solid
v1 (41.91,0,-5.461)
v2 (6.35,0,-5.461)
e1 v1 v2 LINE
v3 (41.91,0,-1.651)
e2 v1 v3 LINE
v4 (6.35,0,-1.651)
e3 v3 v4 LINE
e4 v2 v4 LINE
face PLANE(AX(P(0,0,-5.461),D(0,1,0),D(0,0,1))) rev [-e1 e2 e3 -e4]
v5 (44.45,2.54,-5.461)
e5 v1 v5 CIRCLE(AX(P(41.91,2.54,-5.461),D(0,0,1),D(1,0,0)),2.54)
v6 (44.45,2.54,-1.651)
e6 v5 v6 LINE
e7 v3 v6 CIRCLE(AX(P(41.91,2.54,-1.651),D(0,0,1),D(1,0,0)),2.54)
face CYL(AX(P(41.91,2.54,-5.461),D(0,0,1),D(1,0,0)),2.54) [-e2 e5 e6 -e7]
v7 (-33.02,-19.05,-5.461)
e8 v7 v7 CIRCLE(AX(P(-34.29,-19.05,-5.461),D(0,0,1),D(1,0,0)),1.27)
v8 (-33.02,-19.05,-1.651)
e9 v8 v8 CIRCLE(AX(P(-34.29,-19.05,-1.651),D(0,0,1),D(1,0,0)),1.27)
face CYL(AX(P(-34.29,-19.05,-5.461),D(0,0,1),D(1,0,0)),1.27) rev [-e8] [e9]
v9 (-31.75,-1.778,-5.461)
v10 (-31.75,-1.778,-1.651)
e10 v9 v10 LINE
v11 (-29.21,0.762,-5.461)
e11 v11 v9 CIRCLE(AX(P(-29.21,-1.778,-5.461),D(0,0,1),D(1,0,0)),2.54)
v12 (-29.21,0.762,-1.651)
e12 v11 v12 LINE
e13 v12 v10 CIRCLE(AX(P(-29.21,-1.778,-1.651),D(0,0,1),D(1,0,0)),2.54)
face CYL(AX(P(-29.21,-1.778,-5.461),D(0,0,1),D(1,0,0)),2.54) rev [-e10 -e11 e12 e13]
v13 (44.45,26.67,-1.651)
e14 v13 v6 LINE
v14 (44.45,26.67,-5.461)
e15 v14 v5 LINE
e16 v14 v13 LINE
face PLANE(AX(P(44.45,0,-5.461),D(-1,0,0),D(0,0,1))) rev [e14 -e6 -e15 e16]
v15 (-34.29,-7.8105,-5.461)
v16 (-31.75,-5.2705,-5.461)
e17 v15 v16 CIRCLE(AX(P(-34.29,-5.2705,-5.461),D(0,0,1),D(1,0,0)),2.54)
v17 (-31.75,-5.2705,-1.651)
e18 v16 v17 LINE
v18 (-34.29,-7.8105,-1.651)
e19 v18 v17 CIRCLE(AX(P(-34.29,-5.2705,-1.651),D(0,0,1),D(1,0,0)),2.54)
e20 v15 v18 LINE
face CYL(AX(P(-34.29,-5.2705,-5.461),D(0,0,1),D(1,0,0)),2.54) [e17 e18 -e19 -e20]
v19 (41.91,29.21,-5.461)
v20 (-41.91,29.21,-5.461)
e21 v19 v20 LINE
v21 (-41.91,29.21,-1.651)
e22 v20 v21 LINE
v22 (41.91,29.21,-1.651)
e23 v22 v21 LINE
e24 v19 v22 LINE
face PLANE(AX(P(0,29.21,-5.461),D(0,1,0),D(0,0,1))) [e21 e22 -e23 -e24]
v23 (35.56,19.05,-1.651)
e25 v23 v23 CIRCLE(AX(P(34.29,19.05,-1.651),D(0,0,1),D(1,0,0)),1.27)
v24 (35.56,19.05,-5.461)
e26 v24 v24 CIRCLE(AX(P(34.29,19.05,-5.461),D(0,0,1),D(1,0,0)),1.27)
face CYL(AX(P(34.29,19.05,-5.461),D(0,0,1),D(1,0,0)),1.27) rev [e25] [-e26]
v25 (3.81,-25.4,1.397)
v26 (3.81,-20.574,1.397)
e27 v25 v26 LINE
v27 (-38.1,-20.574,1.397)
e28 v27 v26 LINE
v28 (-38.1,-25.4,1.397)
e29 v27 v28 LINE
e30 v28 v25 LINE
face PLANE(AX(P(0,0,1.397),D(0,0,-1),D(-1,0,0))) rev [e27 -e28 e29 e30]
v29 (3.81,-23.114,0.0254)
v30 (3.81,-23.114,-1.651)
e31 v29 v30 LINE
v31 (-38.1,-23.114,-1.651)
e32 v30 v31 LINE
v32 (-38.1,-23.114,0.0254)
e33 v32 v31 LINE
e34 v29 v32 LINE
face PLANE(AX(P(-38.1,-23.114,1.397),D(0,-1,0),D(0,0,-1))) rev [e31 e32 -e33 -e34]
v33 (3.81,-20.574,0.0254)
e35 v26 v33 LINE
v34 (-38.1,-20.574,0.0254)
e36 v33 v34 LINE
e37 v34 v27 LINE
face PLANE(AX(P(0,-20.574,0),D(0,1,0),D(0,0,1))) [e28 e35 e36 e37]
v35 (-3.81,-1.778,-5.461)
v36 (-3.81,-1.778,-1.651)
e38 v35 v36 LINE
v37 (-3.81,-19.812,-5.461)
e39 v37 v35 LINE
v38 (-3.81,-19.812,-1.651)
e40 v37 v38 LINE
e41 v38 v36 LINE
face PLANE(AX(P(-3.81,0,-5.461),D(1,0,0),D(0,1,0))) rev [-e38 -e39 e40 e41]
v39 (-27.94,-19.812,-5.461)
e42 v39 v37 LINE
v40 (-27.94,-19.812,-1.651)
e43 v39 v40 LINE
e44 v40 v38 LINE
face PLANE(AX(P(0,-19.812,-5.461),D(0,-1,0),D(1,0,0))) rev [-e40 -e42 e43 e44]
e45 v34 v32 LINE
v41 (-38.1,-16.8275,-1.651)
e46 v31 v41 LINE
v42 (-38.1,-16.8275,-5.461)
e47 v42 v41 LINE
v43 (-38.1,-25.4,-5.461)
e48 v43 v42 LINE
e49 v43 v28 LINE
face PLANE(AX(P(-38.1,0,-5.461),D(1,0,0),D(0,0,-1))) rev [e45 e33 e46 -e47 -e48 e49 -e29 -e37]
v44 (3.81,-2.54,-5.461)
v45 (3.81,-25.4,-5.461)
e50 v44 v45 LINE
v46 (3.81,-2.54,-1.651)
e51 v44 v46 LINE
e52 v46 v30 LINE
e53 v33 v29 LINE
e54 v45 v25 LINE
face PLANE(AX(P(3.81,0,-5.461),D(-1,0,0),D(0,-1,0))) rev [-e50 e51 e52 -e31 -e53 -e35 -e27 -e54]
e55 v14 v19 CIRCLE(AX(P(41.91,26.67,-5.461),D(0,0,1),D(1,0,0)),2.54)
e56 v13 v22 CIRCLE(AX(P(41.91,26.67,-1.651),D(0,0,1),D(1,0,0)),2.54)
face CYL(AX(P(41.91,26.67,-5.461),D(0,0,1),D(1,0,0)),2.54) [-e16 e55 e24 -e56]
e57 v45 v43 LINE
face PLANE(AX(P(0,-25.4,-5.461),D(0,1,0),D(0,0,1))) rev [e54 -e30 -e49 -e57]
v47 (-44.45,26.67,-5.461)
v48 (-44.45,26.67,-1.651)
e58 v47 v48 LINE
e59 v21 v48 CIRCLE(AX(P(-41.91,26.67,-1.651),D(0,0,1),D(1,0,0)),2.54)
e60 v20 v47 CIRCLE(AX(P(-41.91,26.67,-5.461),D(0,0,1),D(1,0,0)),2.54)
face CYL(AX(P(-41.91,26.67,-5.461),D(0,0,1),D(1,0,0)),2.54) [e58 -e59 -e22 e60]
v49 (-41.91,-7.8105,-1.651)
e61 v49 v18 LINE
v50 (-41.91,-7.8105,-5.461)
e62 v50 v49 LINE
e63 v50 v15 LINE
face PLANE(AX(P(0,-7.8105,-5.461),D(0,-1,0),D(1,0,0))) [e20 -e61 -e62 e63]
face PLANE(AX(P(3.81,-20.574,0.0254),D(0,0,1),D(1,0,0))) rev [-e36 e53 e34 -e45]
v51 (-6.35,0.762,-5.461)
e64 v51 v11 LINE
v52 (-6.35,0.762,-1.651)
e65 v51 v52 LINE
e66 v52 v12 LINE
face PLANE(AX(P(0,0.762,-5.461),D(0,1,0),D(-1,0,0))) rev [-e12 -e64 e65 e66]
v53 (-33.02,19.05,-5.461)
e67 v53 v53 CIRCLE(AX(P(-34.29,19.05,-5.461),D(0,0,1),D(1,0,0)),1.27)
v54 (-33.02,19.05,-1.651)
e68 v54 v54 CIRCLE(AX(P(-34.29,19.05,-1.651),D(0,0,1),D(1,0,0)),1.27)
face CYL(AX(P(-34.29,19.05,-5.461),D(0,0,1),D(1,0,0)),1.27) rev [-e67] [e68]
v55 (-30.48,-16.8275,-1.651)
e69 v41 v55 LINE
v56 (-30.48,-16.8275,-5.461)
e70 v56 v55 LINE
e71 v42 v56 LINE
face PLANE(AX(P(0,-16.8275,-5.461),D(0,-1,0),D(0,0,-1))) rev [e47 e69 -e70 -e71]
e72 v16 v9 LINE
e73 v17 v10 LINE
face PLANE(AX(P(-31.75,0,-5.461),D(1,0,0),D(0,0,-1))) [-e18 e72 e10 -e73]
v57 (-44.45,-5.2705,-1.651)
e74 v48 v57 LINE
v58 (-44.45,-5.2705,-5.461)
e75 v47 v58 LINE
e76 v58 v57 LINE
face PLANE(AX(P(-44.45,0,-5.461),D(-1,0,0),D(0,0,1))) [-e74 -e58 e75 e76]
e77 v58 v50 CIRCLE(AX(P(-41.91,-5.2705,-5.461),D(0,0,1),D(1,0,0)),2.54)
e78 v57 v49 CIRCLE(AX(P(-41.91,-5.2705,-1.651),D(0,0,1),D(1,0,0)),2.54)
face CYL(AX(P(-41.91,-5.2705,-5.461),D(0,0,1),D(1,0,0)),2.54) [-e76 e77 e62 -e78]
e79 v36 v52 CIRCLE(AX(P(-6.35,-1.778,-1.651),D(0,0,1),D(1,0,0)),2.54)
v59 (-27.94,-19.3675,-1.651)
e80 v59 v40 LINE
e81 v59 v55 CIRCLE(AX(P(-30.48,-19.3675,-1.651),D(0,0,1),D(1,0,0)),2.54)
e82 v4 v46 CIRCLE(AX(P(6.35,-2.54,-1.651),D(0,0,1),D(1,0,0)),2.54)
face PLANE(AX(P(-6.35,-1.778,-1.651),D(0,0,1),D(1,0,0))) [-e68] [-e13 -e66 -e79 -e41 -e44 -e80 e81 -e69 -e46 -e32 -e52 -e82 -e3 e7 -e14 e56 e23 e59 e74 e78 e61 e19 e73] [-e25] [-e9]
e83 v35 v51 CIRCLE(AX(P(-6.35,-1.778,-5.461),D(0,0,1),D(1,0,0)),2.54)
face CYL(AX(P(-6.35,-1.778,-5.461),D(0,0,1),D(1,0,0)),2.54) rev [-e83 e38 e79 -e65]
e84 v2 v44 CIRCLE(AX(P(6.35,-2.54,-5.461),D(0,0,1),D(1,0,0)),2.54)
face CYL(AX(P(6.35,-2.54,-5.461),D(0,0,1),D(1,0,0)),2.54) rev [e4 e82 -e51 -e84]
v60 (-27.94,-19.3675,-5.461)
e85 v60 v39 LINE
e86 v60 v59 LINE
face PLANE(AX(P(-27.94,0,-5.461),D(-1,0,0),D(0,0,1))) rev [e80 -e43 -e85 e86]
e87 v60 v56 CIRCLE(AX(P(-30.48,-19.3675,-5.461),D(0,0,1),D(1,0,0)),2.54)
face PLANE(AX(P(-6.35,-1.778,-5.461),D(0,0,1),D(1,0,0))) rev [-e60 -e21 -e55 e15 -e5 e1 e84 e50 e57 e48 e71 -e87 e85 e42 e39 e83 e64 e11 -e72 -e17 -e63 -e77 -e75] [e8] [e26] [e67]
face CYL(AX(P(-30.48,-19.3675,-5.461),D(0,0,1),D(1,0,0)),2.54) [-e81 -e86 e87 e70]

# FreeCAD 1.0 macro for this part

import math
import FreeCAD as App
import Part
import Sketcher
Q = App.Units.Quantity

doc = App.newDocument("Part")
params = doc.addObject("Spreadsheet::Sheet", "Params")
for row, (alias, value) in enumerate([
    ("sketch1_radius", "0.1 in"),
    ("sketch1_width", "1.4 in"),
    ("sketch1_width2", "0.3 in"),
    ("sketch1_width3", "0.9 in"),
    ("sketch1_width4", "3.3 in"),
    ("pad1_length", "0.15 in"),
    ("sketch2_width", "1.65 in"),
    ("sketch2_height", "0.09 in"),
    ("pad2_length", "0.12 in"),
    ("sketch3_width", "1.65 in"),
    ("sketch3_height", "0.054 in"),
    ("pad3_length", "0.1 in"),
    ("sketch4_diameter", "0.1 in"),
], start=1):
    params.set(f"A{row}", alias)
    params.set(f"B{row}", "=" + value)
    params.setAlias(f"B{row}", alias)

body = doc.addObject("PartDesign::Body", "Body")

sketch1 = body.newObject("Sketcher::SketchObject", "Sketch")
sketch1.AttachmentSupport = (doc.getObject("XY_Plane"), [""])
sketch1.MapMode = "FlatFace"
sketch1.AttachmentOffset = App.Placement(App.Vector(0, 0, -0.065 * 25.4), App.Rotation())
sketch1.addGeometry([
    Part.LineSegment(App.Vector(44.45, 26.67, 0), App.Vector(44.45, 2.54, 0)),
    Part.ArcOfCircle(Part.Circle(App.Vector(41.91, 2.54, 0), App.Vector(0, 0, 1), 2.54), math.radians(-90), math.radians(0)),
    Part.LineSegment(App.Vector(41.91, 0, 0), App.Vector(6.35, 0, 0)),
    Part.ArcOfCircle(Part.Circle(App.Vector(6.35, -2.54, 0), App.Vector(0, 0, 1), 2.54), math.radians(90), math.radians(180)),
    Part.LineSegment(App.Vector(3.81, -2.54, 0), App.Vector(3.81, -25.4, 0)),
    Part.LineSegment(App.Vector(3.81, -25.4, 0), App.Vector(-38.1, -25.4, 0)),
    Part.LineSegment(App.Vector(-38.1, -25.4, 0), App.Vector(-38.1, -16.83, 0)),
    Part.LineSegment(App.Vector(-38.1, -16.83, 0), App.Vector(-30.48, -16.83, 0)),
    Part.ArcOfCircle(Part.Circle(App.Vector(-30.48, -19.37, 0), App.Vector(0, 0, 1), 2.54), math.radians(0), math.radians(90)),
    Part.LineSegment(App.Vector(-27.94, -19.37, 0), App.Vector(-27.94, -19.81, 0)),
    Part.LineSegment(App.Vector(-27.94, -19.81, 0), App.Vector(-3.81, -19.81, 0)),
    Part.LineSegment(App.Vector(-3.81, -19.81, 0), App.Vector(-3.81, -1.78, 0)),
    Part.ArcOfCircle(Part.Circle(App.Vector(-6.35, -1.78, 0), App.Vector(0, 0, 1), 2.54), math.radians(0), math.radians(90)),
    Part.LineSegment(App.Vector(-6.35, 0.76, 0), App.Vector(-29.21, 0.76, 0)),
    Part.ArcOfCircle(Part.Circle(App.Vector(-29.21, -1.78, 0), App.Vector(0, 0, 1), 2.54), math.radians(90), math.radians(180)),
    Part.LineSegment(App.Vector(-31.75, -1.78, 0), App.Vector(-31.75, -5.27, 0)),
    Part.ArcOfCircle(Part.Circle(App.Vector(-34.29, -5.27, 0), App.Vector(0, 0, 1), 2.54), math.radians(-90), math.radians(0)),
    Part.LineSegment(App.Vector(-34.29, -7.81, 0), App.Vector(-41.91, -7.81, 0)),
    Part.ArcOfCircle(Part.Circle(App.Vector(-41.91, -5.27, 0), App.Vector(0, 0, 1), 2.54), math.radians(-180), math.radians(-90)),
    Part.LineSegment(App.Vector(-44.45, -5.27, 0), App.Vector(-44.45, 26.67, 0)),
    Part.ArcOfCircle(Part.Circle(App.Vector(-41.91, 26.67, 0), App.Vector(0, 0, 1), 2.54), math.radians(90), math.radians(180)),
    Part.LineSegment(App.Vector(-41.91, 29.21, 0), App.Vector(41.91, 29.21, 0)),
    Part.ArcOfCircle(Part.Circle(App.Vector(41.91, 26.67, 0), App.Vector(0, 0, 1), 2.54), math.radians(0), math.radians(90)),
], False)
sketch1.addConstraint([
    Sketcher.Constraint("Tangent", 0, 2, 1, 2),
    Sketcher.Constraint("Tangent", 1, 1, 2, 1),
    Sketcher.Constraint("Tangent", 2, 2, 3, 1),
    Sketcher.Constraint("Tangent", 3, 2, 4, 1),
    Sketcher.Constraint("Coincident", 4, 2, 5, 1),
    Sketcher.Constraint("Coincident", 5, 2, 6, 1),
    Sketcher.Constraint("Coincident", 6, 2, 7, 1),
    Sketcher.Constraint("Tangent", 7, 2, 8, 2),
    Sketcher.Constraint("Tangent", 8, 1, 9, 1),
    Sketcher.Constraint("Coincident", 9, 2, 10, 1),
    Sketcher.Constraint("Coincident", 10, 2, 11, 1),
    Sketcher.Constraint("Tangent", 11, 2, 12, 1),
    Sketcher.Constraint("Tangent", 12, 2, 13, 1),
    Sketcher.Constraint("Tangent", 13, 2, 14, 1),
    Sketcher.Constraint("Tangent", 14, 2, 15, 1),
    Sketcher.Constraint("Tangent", 15, 2, 16, 2),
    Sketcher.Constraint("Tangent", 16, 1, 17, 1),
    Sketcher.Constraint("Tangent", 17, 2, 18, 2),
    Sketcher.Constraint("Tangent", 18, 1, 19, 1),
    Sketcher.Constraint("Tangent", 19, 2, 20, 2),
    Sketcher.Constraint("Tangent", 20, 1, 21, 1),
    Sketcher.Constraint("Tangent", 21, 2, 22, 2),
    Sketcher.Constraint("Tangent", 22, 1, 0, 1),
    Sketcher.Constraint("Vertical", 0),
    Sketcher.Constraint("Horizontal", 2),
    Sketcher.Constraint("Vertical", 4),
    Sketcher.Constraint("Horizontal", 5),
    Sketcher.Constraint("Vertical", 6),
    Sketcher.Constraint("Horizontal", 7),
    Sketcher.Constraint("Vertical", 9),
    Sketcher.Constraint("Horizontal", 10),
    Sketcher.Constraint("Vertical", 11),
    Sketcher.Constraint("Horizontal", 13),
    Sketcher.Constraint("Vertical", 15),
    Sketcher.Constraint("Horizontal", 17),
    Sketcher.Constraint("Vertical", 19),
    Sketcher.Constraint("Horizontal", 21),
    Sketcher.Constraint("Equal", 1, 3),
    Sketcher.Constraint("Equal", 3, 8),
    Sketcher.Constraint("Equal", 8, 12),
    Sketcher.Constraint("Equal", 12, 14),
    Sketcher.Constraint("Equal", 14, 16),
    Sketcher.Constraint("Equal", 16, 18),
    Sketcher.Constraint("Equal", 18, 20),
    Sketcher.Constraint("Equal", 20, 22),
    Sketcher.Constraint("PointOnObject", 1, 1, -1),
    Sketcher.Constraint("Equal", 7, 17),
    Sketcher.Constraint("Equal", 10, 0),
    Sketcher.Constraint("Equal", 13, 4),
    Sketcher.Constraint("Radius", 1, Q("0.1 in")),
    Sketcher.Constraint("DistanceX", 2, 2, 2, 1, Q("1.4 in")),
    Sketcher.Constraint("DistanceX", 7, 1, 7, 2, Q("0.3 in")),
    Sketcher.Constraint("DistanceX", 13, 2, 13, 1, Q("0.9 in")),
    Sketcher.Constraint("DistanceX", 21, 1, 21, 2, Q("3.3 in")),
    Sketcher.Constraint("DistanceX", 5, 2, 5, 1, Q("1.65 in")),
    Sketcher.Constraint("DistanceY", 11, 1, 11, 2, Q("0.71 in")),
    Sketcher.Constraint("DistanceX", 8, 3, -1, 1, Q("1.2 in")),
    Sketcher.Constraint("DistanceY", 12, 3, -1, 1, Q("0.07 in")),
    Sketcher.Constraint("DistanceY", 6, 1, 6, 2, Q("0.3375 in")),
    Sketcher.Constraint("DistanceY", 15, 2, 15, 1, Q("0.1375 in")),
])
sketch1.setExpression("Constraints[49]", "Params.sketch1_radius")
sketch1.setExpression("Constraints[50]", "Params.sketch1_width")
sketch1.setExpression("Constraints[51]", "Params.sketch1_width2")
sketch1.setExpression("Constraints[52]", "Params.sketch1_width3")
sketch1.setExpression("Constraints[53]", "Params.sketch1_width4")
pad1 = body.newObject("PartDesign::Pad", "Pad")
pad1.Profile = sketch1
pad1.setExpression("Length", "Params.pad1_length")
pad1.Reversed = True

sketch2 = body.newObject("Sketcher::SketchObject", "Sketch001")
sketch2.AttachmentSupport = (doc.getObject("XY_Plane"), [""])
sketch2.MapMode = "FlatFace"
sketch2.AttachmentOffset = App.Placement(App.Vector(0, 0, -0.065 * 25.4), App.Rotation())
sketch2.addGeometry([
    Part.LineSegment(App.Vector(-38.1, -23.1, 0), App.Vector(-38.1, -25.4, 0)),
    Part.LineSegment(App.Vector(-38.1, -25.4, 0), App.Vector(3.8, -25.4, 0)),
    Part.LineSegment(App.Vector(3.8, -25.4, 0), App.Vector(3.8, -23.1, 0)),
    Part.LineSegment(App.Vector(3.8, -23.1, 0), App.Vector(-38.1, -23.1, 0)),
], False)
sketch2.addConstraint([
    Sketcher.Constraint("Coincident", 0, 2, 1, 1),
    Sketcher.Constraint("Coincident", 1, 2, 2, 1),
    Sketcher.Constraint("Coincident", 2, 2, 3, 1),
    Sketcher.Constraint("Coincident", 3, 2, 0, 1),
    Sketcher.Constraint("Vertical", 0),
    Sketcher.Constraint("Horizontal", 1),
    Sketcher.Constraint("Vertical", 2),
    Sketcher.Constraint("Horizontal", 3),
    Sketcher.Constraint("DistanceY", 0, 2, -1, 1, Q("1 in")),
    Sketcher.Constraint("DistanceX", 1, 1, 1, 2, Q("1.65 in")),
    Sketcher.Constraint("DistanceY", 0, 2, 0, 1, Q("0.09 in")),
    Sketcher.Constraint("DistanceX", 0, 2, -1, 1, Q("1.5 in")),
])
sketch2.setExpression("Constraints[9]", "Params.sketch2_width")
sketch2.setExpression("Constraints[10]", "Params.sketch2_height")
pad2 = body.newObject("PartDesign::Pad", "Pad001")
pad2.Profile = sketch2
pad2.setExpression("Length", "Params.pad2_length")

sketch3 = body.newObject("Sketcher::SketchObject", "Sketch002")
sketch3.AttachmentSupport = (doc.getObject("XZ_Plane"), [""])
sketch3.MapMode = "FlatFace"
sketch3.AttachmentOffset = App.Placement(App.Vector(0, 0, 0.91 * 25.4), App.Rotation())
sketch3.addGeometry([
    Part.LineSegment(App.Vector(-38.1, 0, 0), App.Vector(-38.1, 1.4, 0)),
    Part.LineSegment(App.Vector(-38.1, 1.4, 0), App.Vector(3.8, 1.4, 0)),
    Part.LineSegment(App.Vector(3.8, 1.4, 0), App.Vector(3.8, 0, 0)),
    Part.LineSegment(App.Vector(3.8, 0, 0), App.Vector(-38.1, 0, 0)),
], False)
sketch3.addConstraint([
    Sketcher.Constraint("Coincident", 0, 2, 1, 1),
    Sketcher.Constraint("Coincident", 1, 2, 2, 1),
    Sketcher.Constraint("Coincident", 2, 2, 3, 1),
    Sketcher.Constraint("Coincident", 3, 2, 0, 1),
    Sketcher.Constraint("Vertical", 0),
    Sketcher.Constraint("Horizontal", 1),
    Sketcher.Constraint("Vertical", 2),
    Sketcher.Constraint("Horizontal", 3),
    Sketcher.Constraint("DistanceX", 1, 1, 1, 2, Q("1.65 in")),
    Sketcher.Constraint("DistanceX", 0, 2, -1, 1, Q("1.5 in")),
    Sketcher.Constraint("DistanceY", 0, 1, 0, 2, Q("0.054 in")),
    Sketcher.Constraint("DistanceY", -1, 1, 0, 2, Q("0.055 in")),
])
sketch3.setExpression("Constraints[8]", "Params.sketch3_width")
sketch3.setExpression("Constraints[10]", "Params.sketch3_height")
pad3 = body.newObject("PartDesign::Pad", "Pad002")
pad3.Profile = sketch3
pad3.setExpression("Length", "Params.pad3_length")
pad3.Reversed = True

sketch4 = body.newObject("Sketcher::SketchObject", "Sketch003")
sketch4.AttachmentSupport = (doc.getObject("XY_Plane"), [""])
sketch4.MapMode = "FlatFace"
sketch4.AttachmentOffset = App.Placement(App.Vector(0, 0, -0.065 * 25.4), App.Rotation())
sketch4.addGeometry([
    Part.Circle(App.Vector(-34.3, 19.1, 0), App.Vector(0, 0, 1), 1.3),
    Part.Circle(App.Vector(34.3, 19.1, 0), App.Vector(0, 0, 1), 1.3),
    Part.Circle(App.Vector(-34.3, -19.1, 0), App.Vector(0, 0, 1), 1.3),
], False)
sketch4.addConstraint([
    Sketcher.Constraint("Equal", 0, 1),
    Sketcher.Constraint("Equal", 1, 2),
    Sketcher.Constraint("Symmetric", 1, 3, 2, 3, -1, 1),
    Sketcher.Constraint("Symmetric", 0, 3, 1, 3, -2),
    Sketcher.Constraint("Diameter", 0, Q("0.1 in")),
    Sketcher.Constraint("DistanceX", 0, 3, 1, 3, Q("2.7 in")),
    Sketcher.Constraint("DistanceY", 2, 3, 0, 3, Q("1.5 in")),
])
sketch4.setExpression("Constraints[4]", "Params.sketch4_diameter")
pocket1 = body.newObject("PartDesign::Pocket", "Pocket")
pocket1.Profile = sketch4
pocket1.Type = "ThroughAll"
pocket1.Midplane = True

doc.recompute()
